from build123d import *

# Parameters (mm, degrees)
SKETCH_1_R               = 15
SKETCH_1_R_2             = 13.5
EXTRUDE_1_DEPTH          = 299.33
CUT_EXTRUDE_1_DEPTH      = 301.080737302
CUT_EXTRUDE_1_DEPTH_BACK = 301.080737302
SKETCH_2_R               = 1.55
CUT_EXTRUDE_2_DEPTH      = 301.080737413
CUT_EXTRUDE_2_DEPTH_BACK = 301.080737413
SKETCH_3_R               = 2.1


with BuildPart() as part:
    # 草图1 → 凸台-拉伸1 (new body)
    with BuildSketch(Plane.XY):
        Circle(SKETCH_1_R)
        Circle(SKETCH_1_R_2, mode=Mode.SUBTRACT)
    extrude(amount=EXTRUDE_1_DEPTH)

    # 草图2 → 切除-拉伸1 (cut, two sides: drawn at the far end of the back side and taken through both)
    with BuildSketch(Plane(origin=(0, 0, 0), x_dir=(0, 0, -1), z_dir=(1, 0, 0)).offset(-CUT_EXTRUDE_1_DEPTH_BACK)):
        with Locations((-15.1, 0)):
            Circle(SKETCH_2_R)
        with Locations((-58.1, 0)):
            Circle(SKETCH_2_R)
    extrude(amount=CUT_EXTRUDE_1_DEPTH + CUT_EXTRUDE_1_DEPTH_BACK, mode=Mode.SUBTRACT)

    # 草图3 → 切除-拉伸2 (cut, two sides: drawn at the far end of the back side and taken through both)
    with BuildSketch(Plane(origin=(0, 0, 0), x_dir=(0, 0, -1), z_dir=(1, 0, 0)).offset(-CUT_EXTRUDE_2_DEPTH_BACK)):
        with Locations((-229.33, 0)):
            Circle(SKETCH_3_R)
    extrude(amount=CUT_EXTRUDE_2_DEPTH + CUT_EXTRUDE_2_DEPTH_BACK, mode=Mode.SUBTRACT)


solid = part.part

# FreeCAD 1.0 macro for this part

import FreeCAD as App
import Part
import Sketcher
from FreeCAD import Vector

doc = App.newDocument("Part")
body = doc.addObject("PartDesign::Body", "Body")

# Sketch on XY plane
sketch1 = body.newObject("Sketcher::SketchObject", "Sketch")
sketch1.AttachmentSupport = (doc.getObject("XY_Plane"), [""])
sketch1.MapMode = "FlatFace"
sketch1.addGeometry([
    Part.Circle(Vector(0, 0, 0), Vector(0, 0, 1), 15),
    Part.Circle(Vector(0, 0, 0), Vector(0, 0, 1), 14),
], False)
sketch1.addConstraint([
    Sketcher.Constraint("Coincident", 0, 3, -1, 1),
    Sketcher.Constraint("Coincident", 1, 3, -1, 1),
    Sketcher.Constraint("Diameter", 0, 30.0),
    Sketcher.Constraint("Diameter", 1, 27.0),
])
pad1 = body.newObject("PartDesign::Pad", "Pad")
pad1.Profile = sketch1
pad1.Length = 299.33

# Sketch on YZ plane
sketch2 = body.newObject("Sketcher::SketchObject", "Sketch001")
sketch2.AttachmentSupport = (doc.getObject("YZ_Plane"), [""])
sketch2.MapMode = "FlatFace"
sketch2.addGeometry([
    Part.Circle(Vector(0, 15.1, 0), Vector(0, 0, 1), 1.6),
    Part.Circle(Vector(0, 58.1, 0), Vector(0, 0, 1), 1.6),
], False)
sketch2.addConstraint([
    Sketcher.Constraint("Equal", 0, 1),
    Sketcher.Constraint("PointOnObject", 0, 3, -2),
    Sketcher.Constraint("PointOnObject", 1, 3, -2),
    Sketcher.Constraint("Diameter", 0, 3.1),
    Sketcher.Constraint("DistanceY", 0, 3, 1, 3, 43.0),
    Sketcher.Constraint("DistanceY", -1, 1, 0, 3, 15.1),
])
pocket1 = body.newObject("PartDesign::Pocket", "Pocket")
pocket1.Profile = sketch2
pocket1.Type = "ThroughAll"
pocket1.Midplane = True

# Sketch on YZ plane
sketch3 = body.newObject("Sketcher::SketchObject", "Sketch002")
sketch3.AttachmentSupport = (doc.getObject("YZ_Plane"), [""])
sketch3.MapMode = "FlatFace"
sketch3.addGeometry(Part.Circle(Vector(0, 229.3, 0), Vector(0, 0, 1), 2.1), False)
sketch3.addConstraint([
    Sketcher.Constraint("PointOnObject", 0, 3, -2),
    Sketcher.Constraint("Diameter", 0, 4.2),
    Sketcher.Constraint("DistanceY", -1, 1, 0, 3, 229.33),
])
pocket2 = body.newObject("PartDesign::Pocket", "Pocket001")
pocket2.Profile = sketch3
pocket2.Type = "ThroughAll"
pocket2.Midplane = True

doc.recompute()
